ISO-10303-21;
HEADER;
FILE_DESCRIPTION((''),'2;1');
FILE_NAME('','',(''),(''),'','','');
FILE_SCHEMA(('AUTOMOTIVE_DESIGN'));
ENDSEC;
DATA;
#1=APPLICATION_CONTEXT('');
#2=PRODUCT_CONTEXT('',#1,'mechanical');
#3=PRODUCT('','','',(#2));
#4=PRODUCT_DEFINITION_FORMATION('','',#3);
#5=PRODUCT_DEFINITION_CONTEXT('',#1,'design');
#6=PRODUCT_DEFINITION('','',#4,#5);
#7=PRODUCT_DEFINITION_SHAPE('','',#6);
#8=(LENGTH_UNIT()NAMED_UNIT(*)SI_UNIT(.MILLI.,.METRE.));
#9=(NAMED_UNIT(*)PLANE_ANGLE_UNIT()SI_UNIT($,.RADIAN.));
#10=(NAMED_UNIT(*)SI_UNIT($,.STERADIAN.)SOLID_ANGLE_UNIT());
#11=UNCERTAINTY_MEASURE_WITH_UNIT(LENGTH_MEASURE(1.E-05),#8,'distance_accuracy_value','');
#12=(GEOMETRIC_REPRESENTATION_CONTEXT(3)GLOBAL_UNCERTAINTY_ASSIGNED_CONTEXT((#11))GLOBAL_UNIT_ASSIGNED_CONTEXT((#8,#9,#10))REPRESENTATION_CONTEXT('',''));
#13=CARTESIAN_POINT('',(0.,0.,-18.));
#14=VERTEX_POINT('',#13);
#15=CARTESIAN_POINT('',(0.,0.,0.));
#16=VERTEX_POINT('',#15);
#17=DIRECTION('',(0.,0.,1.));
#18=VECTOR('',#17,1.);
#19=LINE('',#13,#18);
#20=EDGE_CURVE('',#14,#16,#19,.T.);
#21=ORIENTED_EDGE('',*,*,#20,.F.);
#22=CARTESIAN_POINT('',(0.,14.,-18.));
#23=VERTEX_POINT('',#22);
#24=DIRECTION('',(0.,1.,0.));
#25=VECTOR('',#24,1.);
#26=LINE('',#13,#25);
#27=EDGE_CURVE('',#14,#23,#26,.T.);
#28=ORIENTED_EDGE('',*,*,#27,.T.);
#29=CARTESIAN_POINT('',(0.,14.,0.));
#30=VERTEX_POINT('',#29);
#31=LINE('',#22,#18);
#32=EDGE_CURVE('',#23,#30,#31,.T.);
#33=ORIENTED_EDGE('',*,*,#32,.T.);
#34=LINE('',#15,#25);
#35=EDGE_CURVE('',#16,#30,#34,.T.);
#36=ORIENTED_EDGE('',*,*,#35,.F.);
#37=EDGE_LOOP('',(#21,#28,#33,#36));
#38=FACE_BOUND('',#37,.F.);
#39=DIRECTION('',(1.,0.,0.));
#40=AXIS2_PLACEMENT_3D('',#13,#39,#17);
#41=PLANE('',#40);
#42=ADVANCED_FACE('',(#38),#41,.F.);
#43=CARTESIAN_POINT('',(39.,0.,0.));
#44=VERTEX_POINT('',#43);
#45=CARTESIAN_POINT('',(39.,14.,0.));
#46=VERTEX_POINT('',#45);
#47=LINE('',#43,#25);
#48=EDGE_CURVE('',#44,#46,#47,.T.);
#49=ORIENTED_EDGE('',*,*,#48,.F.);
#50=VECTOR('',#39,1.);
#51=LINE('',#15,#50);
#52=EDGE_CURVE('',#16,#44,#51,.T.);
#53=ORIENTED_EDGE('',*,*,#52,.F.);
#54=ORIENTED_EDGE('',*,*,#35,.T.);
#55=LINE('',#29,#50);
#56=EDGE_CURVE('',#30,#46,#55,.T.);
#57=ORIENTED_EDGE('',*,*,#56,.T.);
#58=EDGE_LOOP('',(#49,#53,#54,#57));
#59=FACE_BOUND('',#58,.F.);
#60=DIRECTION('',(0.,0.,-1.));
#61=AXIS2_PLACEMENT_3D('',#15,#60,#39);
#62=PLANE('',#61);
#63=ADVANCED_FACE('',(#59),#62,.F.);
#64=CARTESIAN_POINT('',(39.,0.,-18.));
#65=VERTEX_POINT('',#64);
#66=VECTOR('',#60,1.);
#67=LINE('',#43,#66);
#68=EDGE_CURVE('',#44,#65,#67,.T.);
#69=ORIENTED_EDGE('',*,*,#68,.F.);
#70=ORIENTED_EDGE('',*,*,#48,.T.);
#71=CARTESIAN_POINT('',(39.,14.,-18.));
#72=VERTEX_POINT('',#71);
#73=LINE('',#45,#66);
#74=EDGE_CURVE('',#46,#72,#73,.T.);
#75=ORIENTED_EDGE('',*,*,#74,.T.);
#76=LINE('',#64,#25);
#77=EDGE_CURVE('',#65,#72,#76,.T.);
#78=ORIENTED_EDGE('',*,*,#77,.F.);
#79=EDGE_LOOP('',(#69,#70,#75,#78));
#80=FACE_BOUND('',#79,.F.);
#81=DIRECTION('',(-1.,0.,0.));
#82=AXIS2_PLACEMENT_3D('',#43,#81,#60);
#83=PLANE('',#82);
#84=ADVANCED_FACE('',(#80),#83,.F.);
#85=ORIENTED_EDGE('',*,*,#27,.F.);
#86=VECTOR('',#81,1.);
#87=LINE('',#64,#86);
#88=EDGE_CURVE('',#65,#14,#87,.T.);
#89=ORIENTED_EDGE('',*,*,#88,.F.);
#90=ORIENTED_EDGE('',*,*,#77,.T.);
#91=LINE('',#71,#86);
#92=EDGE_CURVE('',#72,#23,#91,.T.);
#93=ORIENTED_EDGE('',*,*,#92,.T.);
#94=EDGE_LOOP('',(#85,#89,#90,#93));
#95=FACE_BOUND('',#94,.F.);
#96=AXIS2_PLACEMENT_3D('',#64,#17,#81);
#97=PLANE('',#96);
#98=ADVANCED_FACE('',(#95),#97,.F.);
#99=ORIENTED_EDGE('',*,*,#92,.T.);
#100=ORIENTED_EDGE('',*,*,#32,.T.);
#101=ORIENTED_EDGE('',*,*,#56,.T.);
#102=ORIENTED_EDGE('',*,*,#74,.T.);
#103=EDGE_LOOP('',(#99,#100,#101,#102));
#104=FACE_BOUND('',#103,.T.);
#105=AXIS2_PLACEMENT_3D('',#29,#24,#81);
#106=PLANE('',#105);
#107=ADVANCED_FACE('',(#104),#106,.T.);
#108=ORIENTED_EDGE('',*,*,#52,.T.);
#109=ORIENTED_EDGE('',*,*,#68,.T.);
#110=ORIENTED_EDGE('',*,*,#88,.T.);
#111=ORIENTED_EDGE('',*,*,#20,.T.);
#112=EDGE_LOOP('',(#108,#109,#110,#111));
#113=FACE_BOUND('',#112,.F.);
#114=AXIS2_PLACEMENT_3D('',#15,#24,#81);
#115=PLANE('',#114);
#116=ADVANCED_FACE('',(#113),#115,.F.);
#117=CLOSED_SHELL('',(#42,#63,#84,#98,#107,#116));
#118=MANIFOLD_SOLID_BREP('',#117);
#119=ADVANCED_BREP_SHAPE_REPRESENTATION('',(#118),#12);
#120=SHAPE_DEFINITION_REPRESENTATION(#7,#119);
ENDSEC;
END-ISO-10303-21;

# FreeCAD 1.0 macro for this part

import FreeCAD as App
import Part
import Sketcher

V = App.Vector
Q = App.Units.Quantity

doc = App.newDocument("Part")
body = doc.addObject("PartDesign::Body", "Body")

# Sketch on XZ plane
sketch1 = doc.addObject("Sketcher::SketchObject", "Sketch")
body.addObject(sketch1)
sketch1.AttachmentSupport = (doc.XZ_Plane, [""])
sketch1.MapMode = "FlatFace"
sketch1.addGeometry(Part.LineSegment(V(0, -18, 0), V(0, 0, 0)), False)
sketch1.addGeometry(Part.LineSegment(V(0, 0, 0), V(39, 0, 0)), False)
sketch1.addGeometry(Part.LineSegment(V(39, 0, 0), V(39, -18, 0)), False)
sketch1.addGeometry(Part.LineSegment(V(39, -18, 0), V(0, -18, 0)), False)
sketch1.addConstraint(Sketcher.Constraint("Coincident", 0, 2, 1, 1))
sketch1.addConstraint(Sketcher.Constraint("Coincident", 1, 2, 2, 1))
sketch1.addConstraint(Sketcher.Constraint("Coincident", 2, 2, 3, 1))
sketch1.addConstraint(Sketcher.Constraint("Coincident", 3, 2, 0, 1))
sketch1.addConstraint(Sketcher.Constraint("Vertical", 0))
sketch1.addConstraint(Sketcher.Constraint("Horizontal", 1))
sketch1.addConstraint(Sketcher.Constraint("Vertical", 2))
sketch1.addConstraint(Sketcher.Constraint("Horizontal", 3))
sketch1.addConstraint(Sketcher.Constraint("Coincident", 0, 2, -1, 1))
sketch1.addConstraint(Sketcher.Constraint("DistanceX", 1, 1, 1, 2, Q("39 mm")))
sketch1.addConstraint(Sketcher.Constraint("DistanceY", 0, 1, 0, 2, Q("18 mm")))
pad1 = doc.addObject("PartDesign::Pad", "Pad")
body.addObject(pad1)
pad1.Profile = sketch1
pad1.Length = 14
pad1.Reversed = True

doc.recompute()
